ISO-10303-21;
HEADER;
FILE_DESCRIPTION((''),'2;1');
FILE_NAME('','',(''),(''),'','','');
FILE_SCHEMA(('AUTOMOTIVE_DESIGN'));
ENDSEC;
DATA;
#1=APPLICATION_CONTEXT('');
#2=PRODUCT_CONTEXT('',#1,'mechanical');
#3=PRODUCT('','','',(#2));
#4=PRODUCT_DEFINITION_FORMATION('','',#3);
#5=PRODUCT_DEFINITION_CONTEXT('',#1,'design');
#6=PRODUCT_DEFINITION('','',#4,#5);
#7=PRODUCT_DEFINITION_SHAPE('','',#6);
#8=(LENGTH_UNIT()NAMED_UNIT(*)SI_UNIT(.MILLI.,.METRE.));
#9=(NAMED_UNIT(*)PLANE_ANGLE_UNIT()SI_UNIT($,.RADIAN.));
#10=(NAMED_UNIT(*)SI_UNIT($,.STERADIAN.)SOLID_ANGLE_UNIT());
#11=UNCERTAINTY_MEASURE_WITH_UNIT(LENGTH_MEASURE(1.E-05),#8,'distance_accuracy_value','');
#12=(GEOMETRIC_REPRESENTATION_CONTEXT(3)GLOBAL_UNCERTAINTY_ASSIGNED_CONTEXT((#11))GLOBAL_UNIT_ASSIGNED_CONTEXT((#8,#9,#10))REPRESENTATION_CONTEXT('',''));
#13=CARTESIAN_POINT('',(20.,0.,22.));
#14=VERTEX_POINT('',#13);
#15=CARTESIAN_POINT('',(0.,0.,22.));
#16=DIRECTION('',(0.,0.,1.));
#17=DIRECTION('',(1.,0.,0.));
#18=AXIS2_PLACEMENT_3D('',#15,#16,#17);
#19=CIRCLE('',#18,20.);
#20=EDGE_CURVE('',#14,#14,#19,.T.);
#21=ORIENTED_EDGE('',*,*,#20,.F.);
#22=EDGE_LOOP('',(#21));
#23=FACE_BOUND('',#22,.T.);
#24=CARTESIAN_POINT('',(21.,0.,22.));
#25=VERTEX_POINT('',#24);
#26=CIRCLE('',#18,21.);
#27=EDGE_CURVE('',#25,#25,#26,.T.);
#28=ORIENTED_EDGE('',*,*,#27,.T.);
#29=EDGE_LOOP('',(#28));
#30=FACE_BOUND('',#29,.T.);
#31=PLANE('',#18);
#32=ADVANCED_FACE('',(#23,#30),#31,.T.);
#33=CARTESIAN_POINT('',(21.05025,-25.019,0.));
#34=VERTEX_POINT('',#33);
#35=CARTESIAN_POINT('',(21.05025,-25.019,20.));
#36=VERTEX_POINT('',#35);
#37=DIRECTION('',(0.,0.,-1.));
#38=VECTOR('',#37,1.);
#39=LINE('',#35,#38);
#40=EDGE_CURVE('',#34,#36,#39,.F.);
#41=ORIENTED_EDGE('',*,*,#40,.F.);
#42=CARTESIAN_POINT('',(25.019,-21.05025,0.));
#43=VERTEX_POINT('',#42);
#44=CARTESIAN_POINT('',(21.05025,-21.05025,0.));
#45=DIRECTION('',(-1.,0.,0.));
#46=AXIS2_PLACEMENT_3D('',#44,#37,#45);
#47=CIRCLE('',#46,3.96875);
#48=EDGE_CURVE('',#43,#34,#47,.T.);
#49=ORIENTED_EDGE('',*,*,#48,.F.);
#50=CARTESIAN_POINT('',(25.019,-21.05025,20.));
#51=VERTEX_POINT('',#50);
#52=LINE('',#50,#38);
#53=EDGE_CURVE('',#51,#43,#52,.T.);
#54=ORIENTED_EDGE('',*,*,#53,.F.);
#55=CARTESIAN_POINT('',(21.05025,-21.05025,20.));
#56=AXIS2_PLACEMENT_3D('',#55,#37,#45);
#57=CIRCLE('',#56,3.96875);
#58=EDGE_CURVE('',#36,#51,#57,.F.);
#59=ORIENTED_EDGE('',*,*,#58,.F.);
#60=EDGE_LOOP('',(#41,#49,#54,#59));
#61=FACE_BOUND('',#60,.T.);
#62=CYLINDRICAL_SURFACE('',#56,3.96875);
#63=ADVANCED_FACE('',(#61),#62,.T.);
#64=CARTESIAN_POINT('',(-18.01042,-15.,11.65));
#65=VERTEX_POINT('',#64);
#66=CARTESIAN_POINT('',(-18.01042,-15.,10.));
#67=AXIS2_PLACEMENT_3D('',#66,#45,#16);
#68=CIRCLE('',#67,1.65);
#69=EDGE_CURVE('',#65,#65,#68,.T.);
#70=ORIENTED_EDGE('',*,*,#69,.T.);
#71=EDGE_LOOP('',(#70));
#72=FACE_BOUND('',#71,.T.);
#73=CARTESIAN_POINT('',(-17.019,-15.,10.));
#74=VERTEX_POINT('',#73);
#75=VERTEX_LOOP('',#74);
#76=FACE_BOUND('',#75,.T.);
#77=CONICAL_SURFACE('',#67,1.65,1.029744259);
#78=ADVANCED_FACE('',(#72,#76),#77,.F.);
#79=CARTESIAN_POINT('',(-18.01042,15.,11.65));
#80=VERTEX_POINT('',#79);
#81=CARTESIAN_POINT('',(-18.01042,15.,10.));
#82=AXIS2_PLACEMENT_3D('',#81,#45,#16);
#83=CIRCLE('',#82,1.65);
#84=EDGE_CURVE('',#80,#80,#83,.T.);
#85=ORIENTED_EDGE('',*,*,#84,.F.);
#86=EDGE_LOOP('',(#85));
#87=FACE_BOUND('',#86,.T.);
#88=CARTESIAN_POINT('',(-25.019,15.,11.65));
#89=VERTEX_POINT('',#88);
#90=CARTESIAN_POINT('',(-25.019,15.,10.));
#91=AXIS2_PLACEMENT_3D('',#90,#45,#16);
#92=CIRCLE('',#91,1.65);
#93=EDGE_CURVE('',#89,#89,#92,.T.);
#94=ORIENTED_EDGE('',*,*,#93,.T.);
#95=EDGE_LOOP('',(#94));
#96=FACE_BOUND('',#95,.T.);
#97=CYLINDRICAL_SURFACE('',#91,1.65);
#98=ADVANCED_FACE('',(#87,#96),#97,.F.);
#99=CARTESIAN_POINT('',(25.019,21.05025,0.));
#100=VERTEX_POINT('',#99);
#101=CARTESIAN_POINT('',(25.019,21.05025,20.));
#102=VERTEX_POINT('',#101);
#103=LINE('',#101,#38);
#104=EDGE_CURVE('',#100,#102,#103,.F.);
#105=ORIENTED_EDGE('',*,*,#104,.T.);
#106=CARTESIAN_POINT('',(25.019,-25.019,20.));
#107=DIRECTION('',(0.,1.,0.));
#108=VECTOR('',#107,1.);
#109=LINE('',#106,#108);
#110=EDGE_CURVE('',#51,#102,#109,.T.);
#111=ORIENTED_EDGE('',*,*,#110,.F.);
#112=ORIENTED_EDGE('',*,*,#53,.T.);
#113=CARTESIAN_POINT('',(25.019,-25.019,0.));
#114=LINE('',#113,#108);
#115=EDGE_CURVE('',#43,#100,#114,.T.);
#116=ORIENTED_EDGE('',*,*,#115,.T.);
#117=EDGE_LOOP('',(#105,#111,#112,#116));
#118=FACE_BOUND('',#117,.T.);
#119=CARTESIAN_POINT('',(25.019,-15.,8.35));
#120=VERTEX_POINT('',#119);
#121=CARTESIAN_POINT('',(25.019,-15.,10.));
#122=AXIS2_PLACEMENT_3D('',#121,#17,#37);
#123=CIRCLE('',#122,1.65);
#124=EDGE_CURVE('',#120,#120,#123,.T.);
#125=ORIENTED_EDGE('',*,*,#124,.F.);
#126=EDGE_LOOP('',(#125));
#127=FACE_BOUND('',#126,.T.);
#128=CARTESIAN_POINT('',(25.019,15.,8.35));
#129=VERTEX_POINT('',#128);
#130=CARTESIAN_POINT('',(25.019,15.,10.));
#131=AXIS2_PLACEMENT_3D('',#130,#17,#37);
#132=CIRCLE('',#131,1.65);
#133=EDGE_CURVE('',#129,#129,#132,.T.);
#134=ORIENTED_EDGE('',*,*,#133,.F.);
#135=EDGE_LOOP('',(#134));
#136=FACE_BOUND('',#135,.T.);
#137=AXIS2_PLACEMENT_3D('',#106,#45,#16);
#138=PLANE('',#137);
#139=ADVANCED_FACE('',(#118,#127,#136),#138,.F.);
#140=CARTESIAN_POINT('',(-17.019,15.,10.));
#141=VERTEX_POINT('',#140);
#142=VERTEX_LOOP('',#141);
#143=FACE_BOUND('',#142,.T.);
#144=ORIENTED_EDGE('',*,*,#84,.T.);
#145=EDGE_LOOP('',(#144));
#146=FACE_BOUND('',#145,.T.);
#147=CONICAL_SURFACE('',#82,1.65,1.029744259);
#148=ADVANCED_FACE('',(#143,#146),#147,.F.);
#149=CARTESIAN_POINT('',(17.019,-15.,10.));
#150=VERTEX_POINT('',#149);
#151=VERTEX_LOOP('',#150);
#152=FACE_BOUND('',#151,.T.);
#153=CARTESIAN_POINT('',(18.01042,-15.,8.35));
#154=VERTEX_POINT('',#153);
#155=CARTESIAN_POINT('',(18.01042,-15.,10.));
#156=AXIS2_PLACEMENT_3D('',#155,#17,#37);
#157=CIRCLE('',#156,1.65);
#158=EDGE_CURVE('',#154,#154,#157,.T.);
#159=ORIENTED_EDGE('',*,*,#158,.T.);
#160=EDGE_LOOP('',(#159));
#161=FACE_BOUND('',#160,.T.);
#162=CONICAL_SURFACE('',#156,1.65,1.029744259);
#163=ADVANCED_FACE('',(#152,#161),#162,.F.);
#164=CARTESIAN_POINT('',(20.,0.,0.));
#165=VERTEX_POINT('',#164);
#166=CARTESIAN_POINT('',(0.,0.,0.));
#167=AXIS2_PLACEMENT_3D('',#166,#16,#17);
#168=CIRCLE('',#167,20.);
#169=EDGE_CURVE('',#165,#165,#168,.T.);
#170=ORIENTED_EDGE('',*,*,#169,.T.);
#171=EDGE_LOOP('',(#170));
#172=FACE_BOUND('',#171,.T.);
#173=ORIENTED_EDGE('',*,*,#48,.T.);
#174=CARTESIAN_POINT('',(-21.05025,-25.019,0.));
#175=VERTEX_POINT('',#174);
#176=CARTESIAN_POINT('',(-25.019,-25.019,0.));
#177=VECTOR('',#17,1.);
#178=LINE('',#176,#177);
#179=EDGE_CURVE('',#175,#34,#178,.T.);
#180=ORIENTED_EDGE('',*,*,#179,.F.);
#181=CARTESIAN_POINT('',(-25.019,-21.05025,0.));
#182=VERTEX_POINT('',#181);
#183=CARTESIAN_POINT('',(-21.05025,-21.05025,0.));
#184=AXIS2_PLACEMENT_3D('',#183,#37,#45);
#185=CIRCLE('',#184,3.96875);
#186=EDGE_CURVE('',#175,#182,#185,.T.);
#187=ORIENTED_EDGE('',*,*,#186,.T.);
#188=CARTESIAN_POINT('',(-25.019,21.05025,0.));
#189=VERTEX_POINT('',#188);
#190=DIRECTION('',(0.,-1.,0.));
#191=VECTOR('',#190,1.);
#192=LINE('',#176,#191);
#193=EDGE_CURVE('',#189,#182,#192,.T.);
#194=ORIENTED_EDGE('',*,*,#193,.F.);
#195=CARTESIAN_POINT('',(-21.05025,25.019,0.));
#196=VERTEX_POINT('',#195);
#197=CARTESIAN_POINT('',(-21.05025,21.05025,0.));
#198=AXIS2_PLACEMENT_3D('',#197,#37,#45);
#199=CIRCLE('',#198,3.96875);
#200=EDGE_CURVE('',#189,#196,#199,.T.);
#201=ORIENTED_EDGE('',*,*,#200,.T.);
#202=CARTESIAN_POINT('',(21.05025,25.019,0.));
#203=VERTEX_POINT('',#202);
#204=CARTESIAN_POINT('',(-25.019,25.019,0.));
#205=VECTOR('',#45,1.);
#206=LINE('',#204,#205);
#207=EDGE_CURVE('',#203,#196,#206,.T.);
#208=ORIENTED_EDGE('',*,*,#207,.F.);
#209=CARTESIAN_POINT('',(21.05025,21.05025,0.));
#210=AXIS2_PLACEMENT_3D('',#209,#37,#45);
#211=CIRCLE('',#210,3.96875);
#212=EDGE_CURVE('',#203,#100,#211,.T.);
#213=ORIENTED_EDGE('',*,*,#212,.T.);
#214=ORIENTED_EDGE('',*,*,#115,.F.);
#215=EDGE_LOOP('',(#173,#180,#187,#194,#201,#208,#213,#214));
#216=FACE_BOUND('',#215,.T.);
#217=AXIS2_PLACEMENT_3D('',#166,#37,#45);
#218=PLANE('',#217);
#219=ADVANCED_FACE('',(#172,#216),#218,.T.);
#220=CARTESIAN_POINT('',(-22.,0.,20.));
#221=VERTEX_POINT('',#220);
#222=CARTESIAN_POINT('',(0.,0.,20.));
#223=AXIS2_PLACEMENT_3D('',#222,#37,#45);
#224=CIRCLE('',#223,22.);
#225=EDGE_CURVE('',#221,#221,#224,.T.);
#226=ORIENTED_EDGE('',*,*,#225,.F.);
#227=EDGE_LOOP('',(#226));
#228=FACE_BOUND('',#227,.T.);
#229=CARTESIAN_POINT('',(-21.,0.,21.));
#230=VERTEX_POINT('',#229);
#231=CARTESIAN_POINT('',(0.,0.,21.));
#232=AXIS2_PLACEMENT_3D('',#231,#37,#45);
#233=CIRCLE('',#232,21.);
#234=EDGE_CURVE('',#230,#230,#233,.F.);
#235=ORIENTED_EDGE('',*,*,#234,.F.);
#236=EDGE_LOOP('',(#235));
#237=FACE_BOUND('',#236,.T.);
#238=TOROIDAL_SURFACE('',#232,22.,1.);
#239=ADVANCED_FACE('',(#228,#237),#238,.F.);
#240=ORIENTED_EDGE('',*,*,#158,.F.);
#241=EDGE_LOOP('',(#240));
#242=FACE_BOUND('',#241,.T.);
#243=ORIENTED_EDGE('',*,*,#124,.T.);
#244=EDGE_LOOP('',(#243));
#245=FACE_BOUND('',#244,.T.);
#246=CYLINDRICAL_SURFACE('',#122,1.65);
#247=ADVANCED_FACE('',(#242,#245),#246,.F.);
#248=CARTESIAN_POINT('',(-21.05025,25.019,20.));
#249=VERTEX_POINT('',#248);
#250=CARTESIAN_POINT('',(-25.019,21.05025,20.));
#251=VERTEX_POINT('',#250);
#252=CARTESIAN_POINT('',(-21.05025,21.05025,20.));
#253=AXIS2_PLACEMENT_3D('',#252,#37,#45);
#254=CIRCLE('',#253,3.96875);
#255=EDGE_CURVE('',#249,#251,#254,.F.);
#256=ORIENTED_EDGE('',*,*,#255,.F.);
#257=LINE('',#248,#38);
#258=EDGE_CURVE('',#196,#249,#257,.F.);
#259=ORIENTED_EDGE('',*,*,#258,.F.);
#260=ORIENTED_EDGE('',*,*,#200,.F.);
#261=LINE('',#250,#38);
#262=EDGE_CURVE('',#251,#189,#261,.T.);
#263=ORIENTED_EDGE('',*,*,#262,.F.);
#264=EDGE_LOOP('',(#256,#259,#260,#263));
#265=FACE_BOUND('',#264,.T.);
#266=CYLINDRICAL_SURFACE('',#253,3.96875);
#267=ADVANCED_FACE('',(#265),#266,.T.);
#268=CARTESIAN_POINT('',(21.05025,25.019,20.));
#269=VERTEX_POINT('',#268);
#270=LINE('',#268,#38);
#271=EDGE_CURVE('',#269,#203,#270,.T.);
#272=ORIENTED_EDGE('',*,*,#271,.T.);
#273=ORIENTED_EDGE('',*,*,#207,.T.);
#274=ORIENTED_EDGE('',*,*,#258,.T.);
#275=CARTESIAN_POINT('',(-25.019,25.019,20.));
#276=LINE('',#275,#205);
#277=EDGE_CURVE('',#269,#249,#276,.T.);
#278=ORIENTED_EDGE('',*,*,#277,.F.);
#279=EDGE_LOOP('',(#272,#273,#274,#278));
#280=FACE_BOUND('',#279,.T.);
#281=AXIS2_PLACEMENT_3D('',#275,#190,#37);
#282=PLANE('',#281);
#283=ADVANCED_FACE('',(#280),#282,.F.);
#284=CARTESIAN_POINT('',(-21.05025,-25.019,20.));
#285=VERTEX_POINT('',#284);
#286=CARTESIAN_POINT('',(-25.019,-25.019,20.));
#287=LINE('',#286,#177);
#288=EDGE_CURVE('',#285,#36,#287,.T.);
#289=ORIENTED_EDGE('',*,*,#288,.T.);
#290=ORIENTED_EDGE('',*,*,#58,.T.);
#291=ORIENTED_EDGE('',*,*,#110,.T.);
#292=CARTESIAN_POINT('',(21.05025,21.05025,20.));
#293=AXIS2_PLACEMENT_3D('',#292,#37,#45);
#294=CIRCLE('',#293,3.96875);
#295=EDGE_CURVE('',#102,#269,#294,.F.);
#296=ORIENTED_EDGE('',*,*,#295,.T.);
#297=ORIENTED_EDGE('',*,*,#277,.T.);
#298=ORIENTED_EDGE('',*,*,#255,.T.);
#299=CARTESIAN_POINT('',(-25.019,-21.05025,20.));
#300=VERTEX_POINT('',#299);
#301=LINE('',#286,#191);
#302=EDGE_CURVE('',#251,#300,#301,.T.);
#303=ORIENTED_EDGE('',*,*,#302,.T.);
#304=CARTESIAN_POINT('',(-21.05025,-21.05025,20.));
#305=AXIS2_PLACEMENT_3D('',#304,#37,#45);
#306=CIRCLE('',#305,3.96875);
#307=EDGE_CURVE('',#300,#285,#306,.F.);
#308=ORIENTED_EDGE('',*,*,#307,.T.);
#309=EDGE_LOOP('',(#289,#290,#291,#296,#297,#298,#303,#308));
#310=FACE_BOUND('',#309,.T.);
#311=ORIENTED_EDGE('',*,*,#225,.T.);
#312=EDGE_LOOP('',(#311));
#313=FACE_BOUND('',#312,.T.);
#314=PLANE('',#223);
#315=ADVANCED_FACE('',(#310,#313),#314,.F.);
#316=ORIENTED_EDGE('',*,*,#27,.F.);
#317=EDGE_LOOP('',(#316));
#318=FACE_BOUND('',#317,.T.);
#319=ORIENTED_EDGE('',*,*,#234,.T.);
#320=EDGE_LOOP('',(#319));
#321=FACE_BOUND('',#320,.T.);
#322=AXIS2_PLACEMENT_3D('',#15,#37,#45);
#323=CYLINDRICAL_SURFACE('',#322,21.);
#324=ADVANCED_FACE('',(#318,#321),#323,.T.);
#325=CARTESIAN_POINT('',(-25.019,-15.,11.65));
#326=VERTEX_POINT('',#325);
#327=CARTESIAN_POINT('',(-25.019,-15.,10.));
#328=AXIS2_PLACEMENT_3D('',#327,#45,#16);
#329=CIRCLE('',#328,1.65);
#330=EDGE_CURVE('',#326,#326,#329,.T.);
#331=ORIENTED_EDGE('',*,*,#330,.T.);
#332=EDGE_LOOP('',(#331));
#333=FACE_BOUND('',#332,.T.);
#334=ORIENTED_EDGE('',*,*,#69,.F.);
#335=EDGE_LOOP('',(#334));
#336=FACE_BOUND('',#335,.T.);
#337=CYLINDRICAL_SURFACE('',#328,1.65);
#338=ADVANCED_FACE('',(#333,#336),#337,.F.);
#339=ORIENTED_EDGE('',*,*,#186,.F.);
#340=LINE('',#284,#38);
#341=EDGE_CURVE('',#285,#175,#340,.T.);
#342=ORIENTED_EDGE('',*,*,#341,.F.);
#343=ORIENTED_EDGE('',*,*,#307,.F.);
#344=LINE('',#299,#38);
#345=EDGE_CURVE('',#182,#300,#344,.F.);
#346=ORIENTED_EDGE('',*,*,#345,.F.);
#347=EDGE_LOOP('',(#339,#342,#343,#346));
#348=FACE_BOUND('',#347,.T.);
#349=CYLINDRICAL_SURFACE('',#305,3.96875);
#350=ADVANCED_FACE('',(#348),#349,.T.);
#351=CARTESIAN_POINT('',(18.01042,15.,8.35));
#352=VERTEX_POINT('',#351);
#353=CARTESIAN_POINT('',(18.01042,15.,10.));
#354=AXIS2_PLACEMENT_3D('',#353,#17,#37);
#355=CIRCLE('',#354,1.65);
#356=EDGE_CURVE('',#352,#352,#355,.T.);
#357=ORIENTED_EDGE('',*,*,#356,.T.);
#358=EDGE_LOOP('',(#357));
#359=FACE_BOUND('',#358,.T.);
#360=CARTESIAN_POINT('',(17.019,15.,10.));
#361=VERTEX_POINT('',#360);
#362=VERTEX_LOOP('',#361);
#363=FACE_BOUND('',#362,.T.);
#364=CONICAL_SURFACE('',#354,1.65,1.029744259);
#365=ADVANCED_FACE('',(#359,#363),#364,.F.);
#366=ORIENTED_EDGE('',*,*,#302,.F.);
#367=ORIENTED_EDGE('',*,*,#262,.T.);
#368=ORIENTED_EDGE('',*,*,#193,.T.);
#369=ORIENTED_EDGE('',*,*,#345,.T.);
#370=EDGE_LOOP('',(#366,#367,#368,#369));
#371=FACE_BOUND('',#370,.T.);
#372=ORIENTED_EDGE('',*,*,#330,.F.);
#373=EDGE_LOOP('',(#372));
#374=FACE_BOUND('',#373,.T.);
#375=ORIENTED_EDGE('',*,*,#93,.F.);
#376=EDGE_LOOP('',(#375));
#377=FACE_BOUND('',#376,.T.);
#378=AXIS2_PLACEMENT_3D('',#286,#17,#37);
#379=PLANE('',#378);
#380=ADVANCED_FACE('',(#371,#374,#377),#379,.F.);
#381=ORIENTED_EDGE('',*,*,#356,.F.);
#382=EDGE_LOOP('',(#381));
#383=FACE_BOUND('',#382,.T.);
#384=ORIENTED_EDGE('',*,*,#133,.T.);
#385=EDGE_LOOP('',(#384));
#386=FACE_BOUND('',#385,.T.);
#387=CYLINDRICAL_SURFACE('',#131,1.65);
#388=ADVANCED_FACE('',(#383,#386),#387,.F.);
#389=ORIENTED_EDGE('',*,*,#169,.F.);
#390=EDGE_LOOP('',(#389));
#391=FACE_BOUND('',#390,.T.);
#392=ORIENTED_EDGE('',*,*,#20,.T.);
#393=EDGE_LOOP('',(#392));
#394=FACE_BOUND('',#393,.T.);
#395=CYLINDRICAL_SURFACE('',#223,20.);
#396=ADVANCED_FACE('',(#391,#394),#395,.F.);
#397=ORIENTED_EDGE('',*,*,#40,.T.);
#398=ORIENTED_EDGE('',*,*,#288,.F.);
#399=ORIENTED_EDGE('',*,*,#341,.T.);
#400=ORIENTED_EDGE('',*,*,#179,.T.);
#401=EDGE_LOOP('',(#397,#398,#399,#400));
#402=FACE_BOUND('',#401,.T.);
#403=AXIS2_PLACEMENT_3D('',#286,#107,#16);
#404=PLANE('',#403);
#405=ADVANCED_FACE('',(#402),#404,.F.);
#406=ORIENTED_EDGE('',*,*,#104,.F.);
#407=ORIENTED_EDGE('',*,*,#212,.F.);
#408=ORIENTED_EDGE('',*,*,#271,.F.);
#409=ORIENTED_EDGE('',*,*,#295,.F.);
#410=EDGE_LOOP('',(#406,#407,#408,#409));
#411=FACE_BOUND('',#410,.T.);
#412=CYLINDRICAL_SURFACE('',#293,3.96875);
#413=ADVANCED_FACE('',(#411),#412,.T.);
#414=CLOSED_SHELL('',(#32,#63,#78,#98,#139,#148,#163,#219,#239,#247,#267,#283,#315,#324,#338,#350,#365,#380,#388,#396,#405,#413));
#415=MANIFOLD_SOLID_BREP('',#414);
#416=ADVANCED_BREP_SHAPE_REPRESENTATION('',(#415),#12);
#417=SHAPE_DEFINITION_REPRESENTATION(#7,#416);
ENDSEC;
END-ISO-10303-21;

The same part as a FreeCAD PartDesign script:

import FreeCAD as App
import Part
import Sketcher
from FreeCAD import Vector
Q = App.Units.Quantity


def edges_at(feature, points):
    """Names of the edges that pass closest to the given points."""
    edges = feature.Shape.Edges
    near = lambda p: min(range(len(edges)), key=lambda i: edges[i].distToShape(Part.Vertex(*p))[0])
    return sorted({f"Edge{near(p) + 1}" for p in points})


def add_polygon(sketch, points):
    """Adds a closed chain of lines whose ends are joined by coincident constraints."""
    first, n = sketch.GeometryCount, len(points)
    for a, b in zip(points, points[1:] + points[:1]):
        sketch.addGeometry(Part.LineSegment(App.Vector(*a, 0), App.Vector(*b, 0)), False)
    for i in range(n):
        sketch.addConstraint(Sketcher.Constraint("Coincident", first + i, 2, first + (i + 1) % n, 1))

doc = App.newDocument("Part")
params = doc.addObject("Spreadsheet::Sheet", "Params")
for row, (alias, value) in enumerate([
    ("sketch1_diameter", "40 mm"),
    ("pad1_length", "20 mm"),
    ("fillet_radius", "3.96875 mm"),
    ("sketch2_width", "8 mm"),
    ("sketch2_height", "1.65 mm"),
    ("groove_angle", "360 deg"),
    ("linearpattern_pitch", "30 mm"),
    ("sketch3_width", "8 mm"),
    ("sketch3_height", "1.65 mm"),
    ("groove2_angle", "360 deg"),
    ("sketch4_diameter", "42 mm"),
    ("sketch4_diameter2", "40 mm"),
    ("pad2_length", "2 mm"),
    ("fillet2_radius", "1 mm"),
], start=1):
    params.set(f"A{row}", alias)
    params.set(f"B{row}", "=" + value)
    params.setAlias(f"B{row}", alias)

body = doc.addObject("PartDesign::Body", "Body")

sketch1 = body.newObject("Sketcher::SketchObject", "Sketch")
sketch1.AttachmentSupport = (doc.getObject("XY_Plane"), [""])
sketch1.MapMode = "FlatFace"
add_polygon(sketch1, [(-25, 25), (-25, -25), (25, -25), (25, 25)])
sketch1.addGeometry(Part.Circle(Vector(0, 0, 0), Vector(0, 0, 1), 20), False)
sketch1.addConstraint(Sketcher.Constraint("Vertical", 0))
sketch1.addConstraint(Sketcher.Constraint("Horizontal", 1))
sketch1.addConstraint(Sketcher.Constraint("Vertical", 2))
sketch1.addConstraint(Sketcher.Constraint("Horizontal", 3))
sketch1.addConstraint(Sketcher.Constraint("Coincident", 4, 3, -1, 1))
sketch1.addConstraint(Sketcher.Constraint("Symmetric", 0, 2, 2, 2, -1, 1))
sketch1.addConstraint(Sketcher.Constraint("Equal", 3, 0))
sketch1.addConstraint(Sketcher.Constraint("Diameter", 4, 40.0))
sketch1.addConstraint(Sketcher.Constraint("DistanceX", 1, 1, 1, 2, 50.038))
sketch1.setExpression("Constraints[11]", "Params.sketch1_diameter")
pad1 = body.newObject("PartDesign::Pad", "Pad")
pad1.Profile = sketch1
pad1.setExpression("Length", "Params.pad1_length")
doc.recompute()

fillet = body.newObject("PartDesign::Fillet", "Fillet")
fillet.Base = (pad1, edges_at(pad1, [
    (25.019, -25.019, 10),
    (-25.019, -25.019, 10),
    (-25.019, 25.019, 10),
    (25.019, 25.019, 10),
]))
fillet.setExpression("Radius", "Params.fillet_radius")

sketch2 = body.newObject("Sketcher::SketchObject", "Sketch001")
sketch2.AttachmentSupport = (doc.getObject("XZ_Plane"), [""])
sketch2.MapMode = "FlatFace"
sketch2.AttachmentOffset = App.Placement(Vector(0, 0, -15), App.Rotation())
add_polygon(sketch2, [(-17, 10), (-25, 10), (-25, 11.7), (-18, 11.7)])
sketch2.addGeometry(Part.LineSegment(Vector(-25, 10, 0), Vector(-17, 10, 0)), True)
sketch2.addConstraint(Sketcher.Constraint("Horizontal", 0))
sketch2.addConstraint(Sketcher.Constraint("Vertical", 1))
sketch2.addConstraint(Sketcher.Constraint("Horizontal", 2))
sketch2.addConstraint(Sketcher.Constraint("Horizontal", 4))
sketch2.addConstraint(Sketcher.Constraint("Coincident", 4, 1, 0, 2))
sketch2.addConstraint(Sketcher.Constraint("Equal", 0, 4))
sketch2.addConstraint(Sketcher.Constraint("DistanceX", 0, 2, 0, 1, 8.0))
sketch2.addConstraint(Sketcher.Constraint("Angle", 3, Q("-59 deg")))
sketch2.addConstraint(Sketcher.Constraint("DistanceY", -1, 1, 0, 2, 10.0))
sketch2.addConstraint(Sketcher.Constraint("DistanceY", 1, 1, 1, 2, 1.65))
sketch2.addConstraint(Sketcher.Constraint("DistanceX", 0, 2, -1, 1, 25.019))
sketch2.setExpression("Constraints[10]", "Params.sketch2_width")
sketch2.setExpression("Constraints[13]", "Params.sketch2_height")
groove = body.newObject("PartDesign::Groove", "Groove")
groove.Profile = sketch2
groove.ReferenceAxis = (sketch2, ["Axis0"])
groove.setExpression("Angle", "Params.groove_angle")
doc.recompute()

linearpattern = body.newObject("PartDesign::LinearPattern", "LinearPattern")
linearpattern.Originals = [groove]
linearpattern.Direction = (doc.getObject("Y_Axis"), [""])
linearpattern.Mode = "offset"
linearpattern.setExpression("Offset", "Params.linearpattern_pitch")
linearpattern.Occurrences = 2
linearpattern.Reversed = True
body.Tip = linearpattern
doc.recompute()

mirrored = body.newObject("PartDesign::Mirrored", "Mirrored")
mirrored.Originals = [groove]
mirrored.MirrorPlane = (doc.getObject("YZ_Plane"), [""])
body.Tip = mirrored

sketch3 = body.newObject("Sketcher::SketchObject", "Sketch002")
sketch3.AttachmentSupport = (doc.getObject("XZ_Plane"), [""])
sketch3.MapMode = "FlatFace"
sketch3.AttachmentOffset = App.Placement(Vector(0, 0, 15), App.Rotation())
add_polygon(sketch3, [(25, 10), (17, 10), (18, 11.7), (25, 11.7)])
sketch3.addGeometry(Part.LineSegment(Vector(17, 10, 0), Vector(25, 10, 0)), True)
sketch3.addConstraint(Sketcher.Constraint("Horizontal", 0))
sketch3.addConstraint(Sketcher.Constraint("Horizontal", 2))
sketch3.addConstraint(Sketcher.Constraint("Vertical", 3))
sketch3.addConstraint(Sketcher.Constraint("Horizontal", 4))
sketch3.addConstraint(Sketcher.Constraint("Coincident", 4, 1, 0, 2))
sketch3.addConstraint(Sketcher.Constraint("Vertical", 2, 2, 4, 2))
sketch3.addConstraint(Sketcher.Constraint("DistanceX", 0, 2, 0, 1, 8.0))
sketch3.addConstraint(Sketcher.Constraint("Angle", 1, Q("59 deg")))
sketch3.addConstraint(Sketcher.Constraint("DistanceY", -1, 1, 0, 2, 10.0))
sketch3.addConstraint(Sketcher.Constraint("DistanceY", 3, 2, 3, 1, 1.65))
sketch3.addConstraint(Sketcher.Constraint("DistanceX", -1, 1, 0, 2, 17.019))
sketch3.setExpression("Constraints[10]", "Params.sketch3_width")
sketch3.setExpression("Constraints[13]", "Params.sketch3_height")
groove2 = body.newObject("PartDesign::Groove", "Groove001")
groove2.Profile = sketch3
groove2.ReferenceAxis = (sketch3, ["Axis0"])
groove2.setExpression("Angle", "Params.groove2_angle")

sketch4 = body.newObject("Sketcher::SketchObject", "Sketch003")
sketch4.AttachmentSupport = (doc.getObject("XY_Plane"), [""])
sketch4.MapMode = "FlatFace"
sketch4.AttachmentOffset = App.Placement(Vector(0, 0, 20), App.Rotation())
sketch4.addGeometry(Part.Circle(Vector(0, 0, 0), Vector(0, 0, 1), 21), False)
sketch4.addGeometry(Part.Circle(Vector(0, 0, 0), Vector(0, 0, 1), 20), False)
sketch4.addConstraint(Sketcher.Constraint("Coincident", 0, 3, -1, 1))
sketch4.addConstraint(Sketcher.Constraint("Coincident", 1, 3, -1, 1))
sketch4.addConstraint(Sketcher.Constraint("Diameter", 0, 42.0))
sketch4.addConstraint(Sketcher.Constraint("Diameter", 1, 40.0))
sketch4.setExpression("Constraints[2]", "Params.sketch4_diameter")
sketch4.setExpression("Constraints[3]", "Params.sketch4_diameter2")
pad2 = body.newObject("PartDesign::Pad", "Pad001")
pad2.Profile = sketch4
pad2.setExpression("Length", "Params.pad2_length")
doc.recompute()

fillet2 = body.newObject("PartDesign::Fillet", "Fillet001")
fillet2.Base = (pad2, edges_at(pad2, [(-21, 0, 20)]))
fillet2.setExpression("Radius", "Params.fillet2_radius")

doc.recompute()
